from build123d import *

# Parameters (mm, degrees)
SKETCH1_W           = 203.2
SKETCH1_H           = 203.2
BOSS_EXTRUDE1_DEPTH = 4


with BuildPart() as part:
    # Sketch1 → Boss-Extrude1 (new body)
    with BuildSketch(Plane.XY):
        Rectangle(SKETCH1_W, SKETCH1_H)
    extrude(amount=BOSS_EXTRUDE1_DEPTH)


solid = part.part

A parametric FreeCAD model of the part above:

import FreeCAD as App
import Part
import Sketcher
Q = App.Units.Quantity


def add_polygon(sketch, points):
    """Adds a closed chain of lines whose ends are joined by coincident constraints."""
    first, n = sketch.GeometryCount, len(points)
    for a, b in zip(points, points[1:] + points[:1]):
        sketch.addGeometry(Part.LineSegment(App.Vector(*a, 0), App.Vector(*b, 0)), False)
    for i in range(n):
        sketch.addConstraint(Sketcher.Constraint("Coincident", first + i, 2, first + (i + 1) % n, 1))

doc = App.newDocument("Part")
params = doc.addObject("Spreadsheet::Sheet", "Params")
for row, (alias, value) in enumerate([
    ("sketch1_width", "203.2 mm"),
    ("pad1_length", "4 mm"),
], start=1):
    params.set(f"A{row}", alias)
    params.set(f"B{row}", "=" + value)
    params.setAlias(f"B{row}", alias)

body = doc.addObject("PartDesign::Body", "Body")

sketch1 = body.newObject("Sketcher::SketchObject", "Sketch")
sketch1.AttachmentSupport = (doc.getObject("XY_Plane"), [""])
sketch1.MapMode = "FlatFace"
add_polygon(sketch1, [(-101.6, 101.6), (-101.6, -101.6), (101.6, -101.6), (101.6, 101.6)])
sketch1.addConstraint(Sketcher.Constraint("Vertical", 0))
sketch1.addConstraint(Sketcher.Constraint("Horizontal", 1))
sketch1.addConstraint(Sketcher.Constraint("Vertical", 2))
sketch1.addConstraint(Sketcher.Constraint("Horizontal", 3))
sketch1.addConstraint(Sketcher.Constraint("Symmetric", 0, 2, 2, 2, -1, 1))
sketch1.addConstraint(Sketcher.Constraint("Equal", 3, 0))
sketch1.addConstraint(Sketcher.Constraint("DistanceX", 1, 1, 1, 2, Q("203.2 mm")))
sketch1.setExpression("Constraints[10]", "Params.sketch1_width")
pad1 = body.newObject("PartDesign::Pad", "Pad")
pad1.Profile = sketch1
pad1.setExpression("Length", "Params.pad1_length")

doc.recompute()
